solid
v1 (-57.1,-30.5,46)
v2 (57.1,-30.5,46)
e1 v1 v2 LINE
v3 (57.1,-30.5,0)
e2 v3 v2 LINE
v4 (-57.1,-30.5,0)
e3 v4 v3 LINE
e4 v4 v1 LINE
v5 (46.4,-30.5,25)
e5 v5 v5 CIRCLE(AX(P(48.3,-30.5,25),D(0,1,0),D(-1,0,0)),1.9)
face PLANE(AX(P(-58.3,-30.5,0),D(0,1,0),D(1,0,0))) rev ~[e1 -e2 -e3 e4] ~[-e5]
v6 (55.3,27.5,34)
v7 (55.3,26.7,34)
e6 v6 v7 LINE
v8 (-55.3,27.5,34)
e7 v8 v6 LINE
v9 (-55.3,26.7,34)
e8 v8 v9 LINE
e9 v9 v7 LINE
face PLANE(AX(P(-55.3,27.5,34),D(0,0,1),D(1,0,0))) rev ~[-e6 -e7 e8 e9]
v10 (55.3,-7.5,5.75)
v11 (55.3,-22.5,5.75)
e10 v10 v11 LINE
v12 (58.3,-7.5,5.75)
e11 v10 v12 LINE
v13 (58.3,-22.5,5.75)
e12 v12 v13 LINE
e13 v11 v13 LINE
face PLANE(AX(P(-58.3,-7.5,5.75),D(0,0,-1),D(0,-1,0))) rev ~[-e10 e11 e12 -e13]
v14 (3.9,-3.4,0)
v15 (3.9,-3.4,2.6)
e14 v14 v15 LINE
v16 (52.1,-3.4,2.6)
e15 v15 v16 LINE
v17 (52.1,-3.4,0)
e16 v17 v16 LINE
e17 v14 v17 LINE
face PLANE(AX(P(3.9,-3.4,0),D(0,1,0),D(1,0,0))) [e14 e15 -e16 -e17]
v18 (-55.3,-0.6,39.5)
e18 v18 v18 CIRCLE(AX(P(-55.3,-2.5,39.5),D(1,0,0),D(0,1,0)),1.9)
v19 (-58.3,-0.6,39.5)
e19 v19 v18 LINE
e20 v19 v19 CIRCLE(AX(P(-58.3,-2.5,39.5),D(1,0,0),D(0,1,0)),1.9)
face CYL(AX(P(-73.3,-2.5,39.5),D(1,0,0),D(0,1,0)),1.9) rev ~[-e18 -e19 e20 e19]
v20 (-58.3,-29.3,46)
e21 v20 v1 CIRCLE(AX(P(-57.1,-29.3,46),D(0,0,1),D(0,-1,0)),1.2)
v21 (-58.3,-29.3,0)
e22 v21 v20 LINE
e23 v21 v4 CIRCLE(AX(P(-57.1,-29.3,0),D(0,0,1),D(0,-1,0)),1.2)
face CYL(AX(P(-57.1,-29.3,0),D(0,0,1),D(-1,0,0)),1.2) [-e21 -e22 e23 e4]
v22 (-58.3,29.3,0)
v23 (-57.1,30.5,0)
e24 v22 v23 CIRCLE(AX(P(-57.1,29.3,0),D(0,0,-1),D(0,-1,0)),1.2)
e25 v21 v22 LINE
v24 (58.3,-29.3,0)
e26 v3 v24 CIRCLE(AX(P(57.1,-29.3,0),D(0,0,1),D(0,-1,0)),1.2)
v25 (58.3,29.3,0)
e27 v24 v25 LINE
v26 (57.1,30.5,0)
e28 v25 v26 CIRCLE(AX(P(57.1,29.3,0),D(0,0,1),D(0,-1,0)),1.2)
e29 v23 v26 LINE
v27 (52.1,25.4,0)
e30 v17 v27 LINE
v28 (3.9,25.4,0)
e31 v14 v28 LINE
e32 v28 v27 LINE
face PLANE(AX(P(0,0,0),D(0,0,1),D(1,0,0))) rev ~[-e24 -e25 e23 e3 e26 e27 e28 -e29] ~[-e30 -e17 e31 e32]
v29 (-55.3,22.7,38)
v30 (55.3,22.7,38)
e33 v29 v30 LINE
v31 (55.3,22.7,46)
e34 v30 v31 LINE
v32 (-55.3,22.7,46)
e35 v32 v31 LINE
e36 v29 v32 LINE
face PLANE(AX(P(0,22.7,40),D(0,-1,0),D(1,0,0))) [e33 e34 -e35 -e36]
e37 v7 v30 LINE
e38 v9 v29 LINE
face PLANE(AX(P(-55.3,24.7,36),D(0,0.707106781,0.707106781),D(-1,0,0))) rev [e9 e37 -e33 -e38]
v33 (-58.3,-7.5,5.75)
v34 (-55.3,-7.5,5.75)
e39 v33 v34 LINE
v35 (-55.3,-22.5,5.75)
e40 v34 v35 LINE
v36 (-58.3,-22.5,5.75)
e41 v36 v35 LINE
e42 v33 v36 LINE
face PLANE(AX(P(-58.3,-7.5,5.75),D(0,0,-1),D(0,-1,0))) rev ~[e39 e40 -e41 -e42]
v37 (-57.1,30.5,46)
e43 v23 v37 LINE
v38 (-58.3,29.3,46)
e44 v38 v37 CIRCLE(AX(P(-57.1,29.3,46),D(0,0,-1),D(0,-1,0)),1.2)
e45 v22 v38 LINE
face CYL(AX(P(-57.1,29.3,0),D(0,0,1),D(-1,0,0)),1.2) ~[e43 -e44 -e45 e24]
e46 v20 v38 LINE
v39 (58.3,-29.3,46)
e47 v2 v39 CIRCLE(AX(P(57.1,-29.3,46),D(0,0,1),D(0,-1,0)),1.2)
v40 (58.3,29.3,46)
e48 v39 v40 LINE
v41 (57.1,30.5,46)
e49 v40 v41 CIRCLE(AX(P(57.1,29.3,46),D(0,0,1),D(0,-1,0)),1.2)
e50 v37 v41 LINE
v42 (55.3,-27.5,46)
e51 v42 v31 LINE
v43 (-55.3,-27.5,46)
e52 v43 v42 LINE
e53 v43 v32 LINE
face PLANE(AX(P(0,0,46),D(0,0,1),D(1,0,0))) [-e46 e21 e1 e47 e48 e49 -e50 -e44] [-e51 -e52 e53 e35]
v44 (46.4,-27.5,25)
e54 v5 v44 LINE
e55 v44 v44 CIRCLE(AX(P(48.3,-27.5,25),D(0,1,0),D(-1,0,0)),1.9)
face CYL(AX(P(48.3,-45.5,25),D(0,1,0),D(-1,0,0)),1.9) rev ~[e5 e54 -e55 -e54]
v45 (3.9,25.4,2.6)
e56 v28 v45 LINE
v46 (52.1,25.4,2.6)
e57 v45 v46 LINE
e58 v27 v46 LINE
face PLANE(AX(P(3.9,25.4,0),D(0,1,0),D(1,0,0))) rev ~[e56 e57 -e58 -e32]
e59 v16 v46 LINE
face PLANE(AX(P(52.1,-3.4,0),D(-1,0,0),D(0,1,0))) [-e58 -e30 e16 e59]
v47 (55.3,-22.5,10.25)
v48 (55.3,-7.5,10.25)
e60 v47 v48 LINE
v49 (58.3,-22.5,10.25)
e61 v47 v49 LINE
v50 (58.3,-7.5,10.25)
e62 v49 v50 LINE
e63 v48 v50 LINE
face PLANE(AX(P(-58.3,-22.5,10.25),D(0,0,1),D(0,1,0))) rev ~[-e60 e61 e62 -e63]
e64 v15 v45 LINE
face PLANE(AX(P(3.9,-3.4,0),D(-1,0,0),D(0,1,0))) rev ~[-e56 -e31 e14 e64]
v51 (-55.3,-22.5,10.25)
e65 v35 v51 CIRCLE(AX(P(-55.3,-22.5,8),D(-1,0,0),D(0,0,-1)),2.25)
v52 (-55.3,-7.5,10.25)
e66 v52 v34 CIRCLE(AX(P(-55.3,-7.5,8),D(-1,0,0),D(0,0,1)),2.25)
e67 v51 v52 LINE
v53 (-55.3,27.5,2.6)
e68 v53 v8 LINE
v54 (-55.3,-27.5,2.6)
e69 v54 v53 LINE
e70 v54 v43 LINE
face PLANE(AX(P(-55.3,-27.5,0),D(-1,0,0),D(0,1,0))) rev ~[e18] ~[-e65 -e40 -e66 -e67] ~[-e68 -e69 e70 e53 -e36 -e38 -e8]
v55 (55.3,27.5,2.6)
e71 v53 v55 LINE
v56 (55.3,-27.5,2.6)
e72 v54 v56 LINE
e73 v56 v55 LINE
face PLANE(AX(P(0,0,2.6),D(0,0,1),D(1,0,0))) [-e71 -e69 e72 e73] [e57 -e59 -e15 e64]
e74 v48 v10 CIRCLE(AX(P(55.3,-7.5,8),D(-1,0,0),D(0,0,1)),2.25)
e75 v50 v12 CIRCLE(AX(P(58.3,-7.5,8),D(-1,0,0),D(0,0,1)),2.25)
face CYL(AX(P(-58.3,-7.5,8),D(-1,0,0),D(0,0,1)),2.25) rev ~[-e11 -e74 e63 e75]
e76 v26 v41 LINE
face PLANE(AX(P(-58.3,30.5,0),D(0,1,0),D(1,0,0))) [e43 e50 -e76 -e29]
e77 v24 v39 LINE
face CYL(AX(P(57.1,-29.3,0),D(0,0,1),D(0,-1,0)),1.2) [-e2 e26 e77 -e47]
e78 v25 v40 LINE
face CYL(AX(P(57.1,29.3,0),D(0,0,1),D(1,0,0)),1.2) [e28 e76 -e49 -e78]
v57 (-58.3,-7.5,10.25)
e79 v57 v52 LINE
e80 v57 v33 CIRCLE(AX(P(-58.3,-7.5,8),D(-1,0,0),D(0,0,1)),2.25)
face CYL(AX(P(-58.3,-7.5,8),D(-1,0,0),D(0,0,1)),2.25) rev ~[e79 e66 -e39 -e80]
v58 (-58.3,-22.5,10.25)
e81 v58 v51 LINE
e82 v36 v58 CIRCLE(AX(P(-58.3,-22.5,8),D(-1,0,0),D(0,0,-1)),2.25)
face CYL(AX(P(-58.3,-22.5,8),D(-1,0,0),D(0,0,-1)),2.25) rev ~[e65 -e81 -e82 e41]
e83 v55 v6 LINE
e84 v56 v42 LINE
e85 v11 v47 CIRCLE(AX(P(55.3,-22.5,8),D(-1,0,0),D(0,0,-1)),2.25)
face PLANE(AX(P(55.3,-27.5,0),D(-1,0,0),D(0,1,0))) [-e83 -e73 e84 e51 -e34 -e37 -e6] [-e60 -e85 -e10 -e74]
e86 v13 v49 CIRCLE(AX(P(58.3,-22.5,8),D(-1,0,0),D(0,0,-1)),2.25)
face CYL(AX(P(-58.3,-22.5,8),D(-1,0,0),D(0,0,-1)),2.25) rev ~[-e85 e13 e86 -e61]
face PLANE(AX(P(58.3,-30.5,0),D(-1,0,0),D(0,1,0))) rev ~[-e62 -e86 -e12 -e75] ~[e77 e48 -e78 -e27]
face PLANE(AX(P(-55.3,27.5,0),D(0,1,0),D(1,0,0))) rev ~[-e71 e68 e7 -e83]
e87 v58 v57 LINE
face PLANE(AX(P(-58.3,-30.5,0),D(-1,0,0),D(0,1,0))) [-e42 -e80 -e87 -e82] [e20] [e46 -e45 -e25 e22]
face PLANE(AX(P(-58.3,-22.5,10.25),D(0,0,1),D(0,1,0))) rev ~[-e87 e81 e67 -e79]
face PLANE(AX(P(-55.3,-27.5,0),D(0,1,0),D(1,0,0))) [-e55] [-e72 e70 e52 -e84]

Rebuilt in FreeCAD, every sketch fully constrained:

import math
import FreeCAD as App
import Part
import Sketcher

V = App.Vector


def edges_at(feature, points):
    """Names of the edges that pass closest to the given points."""
    edges = feature.Shape.Edges
    near = lambda p: min(range(len(edges)), key=lambda i: edges[i].distToShape(Part.Vertex(*p))[0])
    return sorted({f"Edge{near(p) + 1}" for p in points})

doc = App.newDocument("Part")
params = doc.addObject("Spreadsheet::Sheet", "Params")
for row, (alias, value) in enumerate([
    ("sketch1_height", "55 mm"),
    ("sketch1_width", "110.6 mm"),
    ("sketch1_width2", "48.2 mm"),
    ("sketch1_height2", "28.8 mm"),
    ("pad1_length", "2.6 mm"),
    ("sketch2_height", "61 mm"),
    ("sketch2_height2", "55 mm"),
    ("sketch2_width", "116.6 mm"),
    ("sketch2_width2", "110.6 mm"),
    ("pad2_length", "46 mm"),
    ("sketch3_height", "12 mm"),
    ("sketch3_width", "110.6 mm"),
    ("pad3_length", "4.8 mm"),
    ("chamfer_size", "4 mm"),
    ("sketch4_diameter", "3.8 mm"),
    ("hole_diameter", "3.8 mm"),
    ("hole_depth", "15 mm"),
    ("sketch5_diameter", "3.8 mm"),
    ("hole2_diameter", "3.8 mm"),
    ("hole2_depth", "15 mm"),
    ("sketch6_width", "15 mm"),
    ("sketch6_radius", "2.25 mm"),
    ("pocket1_length", "120 mm"),
    ("fillet_radius", "1.2 mm"),
], start=1):
    params.set(f"A{row}", alias)
    params.set(f"B{row}", "=" + value)
    params.setAlias(f"B{row}", alias)

body = doc.addObject("PartDesign::Body", "Body")

# Sketch on XY plane
sketch1 = body.newObject("Sketcher::SketchObject", "Sketch")
sketch1.AttachmentSupport = (doc.getObject("XY_Plane"), [""])
sketch1.MapMode = "FlatFace"
sketch1.addGeometry([
    Part.LineSegment(V(-55.3, 27.5, 0), V(-55.3, -27.5, 0)),  # 0
    Part.LineSegment(V(-55.3, -27.5, 0), V(55.3, -27.5, 0)),  # 1
    Part.LineSegment(V(55.3, -27.5, 0), V(55.3, 27.5, 0)),  # 2
    Part.LineSegment(V(55.3, 27.5, 0), V(-55.3, 27.5, 0)),  # 3
    Part.LineSegment(V(52.1, -3.4, 0), V(3.9, -3.4, 0)),  # 4
    Part.LineSegment(V(3.9, -3.4, 0), V(3.9, 25.4, 0)),  # 5
    Part.LineSegment(V(3.9, 25.4, 0), V(52.1, 25.4, 0)),  # 6
    Part.LineSegment(V(52.1, 25.4, 0), V(52.1, -3.4, 0)),  # 7
], False)
sketch1.addConstraint([
    Sketcher.Constraint("Coincident", 0, 2, 1, 1),
    Sketcher.Constraint("Coincident", 1, 2, 2, 1),
    Sketcher.Constraint("Coincident", 2, 2, 3, 1),
    Sketcher.Constraint("Coincident", 3, 2, 0, 1),
    Sketcher.Constraint("Coincident", 4, 2, 5, 1),
    Sketcher.Constraint("Coincident", 5, 2, 6, 1),
    Sketcher.Constraint("Coincident", 6, 2, 7, 1),
    Sketcher.Constraint("Coincident", 7, 2, 4, 1),
    Sketcher.Constraint("Vertical", 0),
    Sketcher.Constraint("Horizontal", 1),
    Sketcher.Constraint("Vertical", 2),
    Sketcher.Constraint("Horizontal", 3),
    Sketcher.Constraint("Horizontal", 4),
    Sketcher.Constraint("Vertical", 5),
    Sketcher.Constraint("Horizontal", 6),
    Sketcher.Constraint("Vertical", 7),
    Sketcher.Constraint("Symmetric", 0, 2, 2, 2, -1, 1),
    Sketcher.Constraint("DistanceY", 0, 2, 0, 1, 55.0),
    Sketcher.Constraint("DistanceX", 1, 1, 1, 2, 110.6),
    Sketcher.Constraint("DistanceX", 4, 2, 4, 1, 48.2),
    Sketcher.Constraint("DistanceY", 5, 1, 5, 2, 28.8),
    Sketcher.Constraint("DistanceX", -1, 1, 4, 2, 3.9),
    Sketcher.Constraint("DistanceY", 4, 2, -1, 1, 3.4),
])
sketch1.setExpression("Constraints[17]", "Params.sketch1_height")
sketch1.setExpression("Constraints[18]", "Params.sketch1_width")
sketch1.setExpression("Constraints[19]", "Params.sketch1_width2")
sketch1.setExpression("Constraints[20]", "Params.sketch1_height2")
pad1 = body.newObject("PartDesign::Pad", "Pad")
pad1.Profile = sketch1
pad1.setExpression("Length", "Params.pad1_length")

# Sketch on XY plane
sketch2 = body.newObject("Sketcher::SketchObject", "Sketch001")
sketch2.AttachmentSupport = (doc.getObject("XY_Plane"), [""])
sketch2.MapMode = "FlatFace"
sketch2.addGeometry([
    Part.LineSegment(V(-58.3, 30.5, 0), V(-58.3, -30.5, 0)),  # 0
    Part.LineSegment(V(-58.3, -30.5, 0), V(58.3, -30.5, 0)),  # 1
    Part.LineSegment(V(58.3, -30.5, 0), V(58.3, 30.5, 0)),  # 2
    Part.LineSegment(V(58.3, 30.5, 0), V(-58.3, 30.5, 0)),  # 3
    Part.LineSegment(V(55.3, -27.5, 0), V(-55.3, -27.5, 0)),  # 4
    Part.LineSegment(V(-55.3, -27.5, 0), V(-55.3, 27.5, 0)),  # 5
    Part.LineSegment(V(-55.3, 27.5, 0), V(55.3, 27.5, 0)),  # 6
    Part.LineSegment(V(55.3, 27.5, 0), V(55.3, -27.5, 0)),  # 7
], False)
sketch2.addConstraint([
    Sketcher.Constraint("Coincident", 0, 2, 1, 1),
    Sketcher.Constraint("Coincident", 1, 2, 2, 1),
    Sketcher.Constraint("Coincident", 2, 2, 3, 1),
    Sketcher.Constraint("Coincident", 3, 2, 0, 1),
    Sketcher.Constraint("Coincident", 4, 2, 5, 1),
    Sketcher.Constraint("Coincident", 5, 2, 6, 1),
    Sketcher.Constraint("Coincident", 6, 2, 7, 1),
    Sketcher.Constraint("Coincident", 7, 2, 4, 1),
    Sketcher.Constraint("Vertical", 0),
    Sketcher.Constraint("Horizontal", 1),
    Sketcher.Constraint("Vertical", 2),
    Sketcher.Constraint("Horizontal", 3),
    Sketcher.Constraint("Horizontal", 4),
    Sketcher.Constraint("Vertical", 5),
    Sketcher.Constraint("Horizontal", 6),
    Sketcher.Constraint("Vertical", 7),
    Sketcher.Constraint("Symmetric", 0, 2, 2, 2, -1, 1),
    Sketcher.Constraint("Symmetric", 4, 2, 6, 2, -1, 1),
    Sketcher.Constraint("DistanceY", 0, 2, 0, 1, 61.0),
    Sketcher.Constraint("DistanceY", 5, 1, 5, 2, 55.0),
    Sketcher.Constraint("DistanceX", 1, 1, 1, 2, 116.6),
    Sketcher.Constraint("DistanceX", 4, 2, 4, 1, 110.6),
])
sketch2.setExpression("Constraints[18]", "Params.sketch2_height")
sketch2.setExpression("Constraints[19]", "Params.sketch2_height2")
sketch2.setExpression("Constraints[20]", "Params.sketch2_width")
sketch2.setExpression("Constraints[21]", "Params.sketch2_width2")
pad2 = body.newObject("PartDesign::Pad", "Pad001")
pad2.Profile = sketch2
pad2.setExpression("Length", "Params.pad2_length")

# Sketch on XZ plane
sketch3 = body.newObject("Sketcher::SketchObject", "Sketch002")
sketch3.AttachmentSupport = (doc.getObject("XZ_Plane"), [""])
sketch3.MapMode = "FlatFace"
sketch3.AttachmentOffset = App.Placement(V(0, 0, -27.5), App.Rotation())
sketch3.addGeometry([
    Part.LineSegment(V(-55.3, 46, 0), V(-55.3, 34, 0)),
    Part.LineSegment(V(-55.3, 34, 0), V(55.3, 34, 0)),
    Part.LineSegment(V(55.3, 34, 0), V(55.3, 46, 0)),
    Part.LineSegment(V(55.3, 46, 0), V(-55.3, 46, 0)),
], False)
sketch3.addConstraint([
    Sketcher.Constraint("Coincident", 0, 2, 1, 1),
    Sketcher.Constraint("Coincident", 1, 2, 2, 1),
    Sketcher.Constraint("Coincident", 2, 2, 3, 1),
    Sketcher.Constraint("Coincident", 3, 2, 0, 1),
    Sketcher.Constraint("Vertical", 0),
    Sketcher.Constraint("Horizontal", 1),
    Sketcher.Constraint("Vertical", 2),
    Sketcher.Constraint("Horizontal", 3),
    Sketcher.Constraint("DistanceY", 0, 2, 0, 1, 12.0),
    Sketcher.Constraint("DistanceX", 1, 1, 1, 2, 110.6),
    Sketcher.Constraint("DistanceY", -1, 1, 0, 2, 34.0),
    Sketcher.Constraint("DistanceX", 0, 2, -1, 1, 55.3),
])
sketch3.setExpression("Constraints[8]", "Params.sketch3_height")
sketch3.setExpression("Constraints[9]", "Params.sketch3_width")
pad3 = body.newObject("PartDesign::Pad", "Pad002")
pad3.Profile = sketch3
pad3.setExpression("Length", "Params.pad3_length")
doc.recompute()

chamfer = body.newObject("PartDesign::Chamfer", "Chamfer")
chamfer.Base = (pad3, edges_at(pad3, [(0, 22.7, 34)]))
chamfer.setExpression("Size", "Params.chamfer_size")

# Sketch on XZ plane
sketch4 = body.newObject("Sketcher::SketchObject", "Sketch003")
sketch4.AttachmentSupport = (doc.getObject("XZ_Plane"), [""])
sketch4.MapMode = "FlatFace"
sketch4.AttachmentOffset = App.Placement(V(0, 0, 30.5), App.Rotation())
sketch4.addGeometry(Part.Circle(V(48.3, 25, 0), V(0, 0, 1), 1.9), False)
sketch4.addConstraint([
    Sketcher.Constraint("Diameter", 0, 3.8),
    Sketcher.Constraint("DistanceY", -1, 1, 0, 3, 25.0),
    Sketcher.Constraint("DistanceX", -1, 1, 0, 3, 48.3),
])
sketch4.setExpression("Constraints[0]", "Params.sketch4_diameter")
doc.recompute()
hole = body.newObject("PartDesign::Hole", "Hole")
hole.Profile = sketch4
hole.ThreadType = "None"
hole.setExpression("Diameter", "Params.hole_diameter")
hole.DepthType = "Dimension"
hole.setExpression("Depth", "Params.hole_depth")
hole.DrillPoint = "Flat"

# Sketch on YZ plane
sketch5 = body.newObject("Sketcher::SketchObject", "Sketch004")
sketch5.AttachmentSupport = (doc.getObject("YZ_Plane"), [""])
sketch5.MapMode = "FlatFace"
sketch5.AttachmentOffset = App.Placement(V(0, 0, -58.3), App.Rotation())
sketch5.addGeometry(Part.Circle(V(-2.5, 39.5, 0), V(0, 0, 1), 1.9), False)
sketch5.addConstraint([
    Sketcher.Constraint("Diameter", 0, 3.8),
    Sketcher.Constraint("DistanceX", 0, 3, -1, 1, 2.5),
    Sketcher.Constraint("DistanceY", -1, 1, 0, 3, 39.5),
])
sketch5.setExpression("Constraints[0]", "Params.sketch5_diameter")
doc.recompute()
hole2 = body.newObject("PartDesign::Hole", "Hole001")
hole2.Profile = sketch5
hole2.ThreadType = "None"
hole2.setExpression("Diameter", "Params.hole2_diameter")
hole2.DepthType = "Dimension"
hole2.setExpression("Depth", "Params.hole2_depth")
hole2.DrillPoint = "Flat"
hole2.Reversed = True

# Sketch on YZ plane
sketch6 = body.newObject("Sketcher::SketchObject", "Sketch005")
sketch6.AttachmentSupport = (doc.getObject("YZ_Plane"), [""])
sketch6.MapMode = "FlatFace"
sketch6.AttachmentOffset = App.Placement(V(0, 0, -58.3), App.Rotation())
sketch6.addGeometry([
    Part.LineSegment(V(-7.5, 5.75, 0), V(-22.5, 5.75, 0)),
    Part.ArcOfCircle(Part.Circle(V(-22.5, 8, 0), V(0, 0, 1), 2.25), math.radians(90), math.radians(270)),
    Part.LineSegment(V(-22.5, 10.25, 0), V(-7.5, 10.25, 0)),
    Part.ArcOfCircle(Part.Circle(V(-7.5, 8, 0), V(0, 0, 1), 2.25), math.radians(-90), math.radians(90)),
], False)
sketch6.addConstraint([
    Sketcher.Constraint("Tangent", 0, 2, 1, 2),
    Sketcher.Constraint("Tangent", 1, 1, 2, 1),
    Sketcher.Constraint("Tangent", 2, 2, 3, 2),
    Sketcher.Constraint("Tangent", 3, 1, 0, 1),
    Sketcher.Constraint("Horizontal", 0),
    Sketcher.Constraint("Horizontal", 2),
    Sketcher.Constraint("DistanceX", 0, 2, 0, 1, 15.0),
    Sketcher.Constraint("Radius", 1, 2.25),
    Sketcher.Constraint("DistanceY", -1, 1, 1, 3, 8.0),
    Sketcher.Constraint("DistanceX", 1, 3, -1, 1, 22.5),
])
sketch6.setExpression("Constraints[6]", "Params.sketch6_width")
sketch6.setExpression("Constraints[7]", "Params.sketch6_radius")
pocket1 = body.newObject("PartDesign::Pocket", "Pocket")
pocket1.Profile = sketch6
pocket1.setExpression("Length", "Params.pocket1_length")
pocket1.Reversed = True
doc.recompute()

fillet = body.newObject("PartDesign::Fillet", "Fillet")
fillet.Base = (pocket1, edges_at(pocket1, [
    (58.3, 30.5, 23),
    (58.3, -30.5, 23),
    (-58.3, -30.5, 23),
    (-58.3, 30.5, 23),
]))
fillet.setExpression("Radius", "Params.fillet_radius")

doc.recompute()
